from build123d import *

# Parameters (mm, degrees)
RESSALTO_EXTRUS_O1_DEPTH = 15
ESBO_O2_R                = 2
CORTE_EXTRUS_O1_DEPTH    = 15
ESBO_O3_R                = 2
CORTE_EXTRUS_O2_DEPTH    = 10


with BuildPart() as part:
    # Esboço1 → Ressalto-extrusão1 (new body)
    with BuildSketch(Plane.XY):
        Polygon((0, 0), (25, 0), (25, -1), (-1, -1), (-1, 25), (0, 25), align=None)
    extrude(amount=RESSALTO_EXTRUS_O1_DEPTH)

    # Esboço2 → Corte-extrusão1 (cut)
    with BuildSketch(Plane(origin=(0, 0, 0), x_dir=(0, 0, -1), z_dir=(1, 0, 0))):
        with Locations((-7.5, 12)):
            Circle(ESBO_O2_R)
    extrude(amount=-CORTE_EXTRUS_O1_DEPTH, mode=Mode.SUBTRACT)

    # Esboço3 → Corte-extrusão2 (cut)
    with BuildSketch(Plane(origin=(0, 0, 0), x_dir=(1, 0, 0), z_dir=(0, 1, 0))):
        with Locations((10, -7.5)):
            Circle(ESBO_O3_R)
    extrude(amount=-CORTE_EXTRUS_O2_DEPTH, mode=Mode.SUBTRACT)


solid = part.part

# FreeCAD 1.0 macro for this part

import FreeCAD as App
import Part
import Sketcher
from FreeCAD import Vector

doc = App.newDocument("Part")
body = doc.addObject("PartDesign::Body", "Body")

sketch1 = body.newObject("Sketcher::SketchObject", "Sketch")
sketch1.AttachmentSupport = (doc.getObject("XY_Plane"), [""])
sketch1.MapMode = "FlatFace"
sketch1.addGeometry([
    Part.LineSegment(Vector(25, 0, 0), Vector(0, 0, 0)),
    Part.LineSegment(Vector(0, 0, 0), Vector(0, 25, 0)),
    Part.LineSegment(Vector(0, 25, 0), Vector(-1, 25, 0)),
    Part.LineSegment(Vector(-1, 25, 0), Vector(-1, -1, 0)),
    Part.LineSegment(Vector(-1, -1, 0), Vector(25, -1, 0)),
    Part.LineSegment(Vector(25, -1, 0), Vector(25, 0, 0)),
], False)
sketch1.addConstraint([
    Sketcher.Constraint("Coincident", 0, 2, 1, 1),
    Sketcher.Constraint("Coincident", 1, 2, 2, 1),
    Sketcher.Constraint("Coincident", 2, 2, 3, 1),
    Sketcher.Constraint("Coincident", 3, 2, 4, 1),
    Sketcher.Constraint("Coincident", 4, 2, 5, 1),
    Sketcher.Constraint("Coincident", 5, 2, 0, 1),
    Sketcher.Constraint("Horizontal", 0),
    Sketcher.Constraint("Vertical", 1),
    Sketcher.Constraint("Horizontal", 2),
    Sketcher.Constraint("Vertical", 3),
    Sketcher.Constraint("Horizontal", 4),
    Sketcher.Constraint("Vertical", 5),
    Sketcher.Constraint("Coincident", 0, 2, -1, 1),
    Sketcher.Constraint("Equal", 0, 1),
    Sketcher.Constraint("Equal", 4, 3),
    Sketcher.Constraint("DistanceX", 0, 2, 0, 1, 25.0),
    Sketcher.Constraint("DistanceX", 2, 2, 2, 1, 1.0),
])
pad1 = body.newObject("PartDesign::Pad", "Pad")
pad1.Profile = sketch1
pad1.Length = 15

sketch2 = body.newObject("Sketcher::SketchObject", "Sketch001")
sketch2.AttachmentSupport = (doc.getObject("YZ_Plane"), [""])
sketch2.MapMode = "FlatFace"
sketch2.addGeometry(Part.Circle(Vector(12, 7.5, 0), Vector(0, 0, 1), 2), False)
sketch2.addConstraint([
    Sketcher.Constraint("Diameter", 0, 4.0),
    Sketcher.Constraint("DistanceX", -1, 1, 0, 3, 12.0),
    Sketcher.Constraint("DistanceY", -1, 1, 0, 3, 7.5),
])
pocket1 = body.newObject("PartDesign::Pocket", "Pocket")
pocket1.Profile = sketch2
pocket1.Length = 15

sketch3 = body.newObject("Sketcher::SketchObject", "Sketch002")
sketch3.AttachmentSupport = (doc.getObject("XZ_Plane"), [""])
sketch3.MapMode = "FlatFace"
sketch3.addGeometry(Part.Circle(Vector(10, 7.5, 0), Vector(0, 0, 1), 2), False)
sketch3.addConstraint([
    Sketcher.Constraint("Diameter", 0, 4.0),
    Sketcher.Constraint("DistanceX", -1, 1, 0, 3, 10.0),
    Sketcher.Constraint("DistanceY", -1, 1, 0, 3, 7.5),
])
pocket2 = body.newObject("PartDesign::Pocket", "Pocket001")
pocket2.Profile = sketch3
pocket2.Length = 10
pocket2.Reversed = True

doc.recompute()
